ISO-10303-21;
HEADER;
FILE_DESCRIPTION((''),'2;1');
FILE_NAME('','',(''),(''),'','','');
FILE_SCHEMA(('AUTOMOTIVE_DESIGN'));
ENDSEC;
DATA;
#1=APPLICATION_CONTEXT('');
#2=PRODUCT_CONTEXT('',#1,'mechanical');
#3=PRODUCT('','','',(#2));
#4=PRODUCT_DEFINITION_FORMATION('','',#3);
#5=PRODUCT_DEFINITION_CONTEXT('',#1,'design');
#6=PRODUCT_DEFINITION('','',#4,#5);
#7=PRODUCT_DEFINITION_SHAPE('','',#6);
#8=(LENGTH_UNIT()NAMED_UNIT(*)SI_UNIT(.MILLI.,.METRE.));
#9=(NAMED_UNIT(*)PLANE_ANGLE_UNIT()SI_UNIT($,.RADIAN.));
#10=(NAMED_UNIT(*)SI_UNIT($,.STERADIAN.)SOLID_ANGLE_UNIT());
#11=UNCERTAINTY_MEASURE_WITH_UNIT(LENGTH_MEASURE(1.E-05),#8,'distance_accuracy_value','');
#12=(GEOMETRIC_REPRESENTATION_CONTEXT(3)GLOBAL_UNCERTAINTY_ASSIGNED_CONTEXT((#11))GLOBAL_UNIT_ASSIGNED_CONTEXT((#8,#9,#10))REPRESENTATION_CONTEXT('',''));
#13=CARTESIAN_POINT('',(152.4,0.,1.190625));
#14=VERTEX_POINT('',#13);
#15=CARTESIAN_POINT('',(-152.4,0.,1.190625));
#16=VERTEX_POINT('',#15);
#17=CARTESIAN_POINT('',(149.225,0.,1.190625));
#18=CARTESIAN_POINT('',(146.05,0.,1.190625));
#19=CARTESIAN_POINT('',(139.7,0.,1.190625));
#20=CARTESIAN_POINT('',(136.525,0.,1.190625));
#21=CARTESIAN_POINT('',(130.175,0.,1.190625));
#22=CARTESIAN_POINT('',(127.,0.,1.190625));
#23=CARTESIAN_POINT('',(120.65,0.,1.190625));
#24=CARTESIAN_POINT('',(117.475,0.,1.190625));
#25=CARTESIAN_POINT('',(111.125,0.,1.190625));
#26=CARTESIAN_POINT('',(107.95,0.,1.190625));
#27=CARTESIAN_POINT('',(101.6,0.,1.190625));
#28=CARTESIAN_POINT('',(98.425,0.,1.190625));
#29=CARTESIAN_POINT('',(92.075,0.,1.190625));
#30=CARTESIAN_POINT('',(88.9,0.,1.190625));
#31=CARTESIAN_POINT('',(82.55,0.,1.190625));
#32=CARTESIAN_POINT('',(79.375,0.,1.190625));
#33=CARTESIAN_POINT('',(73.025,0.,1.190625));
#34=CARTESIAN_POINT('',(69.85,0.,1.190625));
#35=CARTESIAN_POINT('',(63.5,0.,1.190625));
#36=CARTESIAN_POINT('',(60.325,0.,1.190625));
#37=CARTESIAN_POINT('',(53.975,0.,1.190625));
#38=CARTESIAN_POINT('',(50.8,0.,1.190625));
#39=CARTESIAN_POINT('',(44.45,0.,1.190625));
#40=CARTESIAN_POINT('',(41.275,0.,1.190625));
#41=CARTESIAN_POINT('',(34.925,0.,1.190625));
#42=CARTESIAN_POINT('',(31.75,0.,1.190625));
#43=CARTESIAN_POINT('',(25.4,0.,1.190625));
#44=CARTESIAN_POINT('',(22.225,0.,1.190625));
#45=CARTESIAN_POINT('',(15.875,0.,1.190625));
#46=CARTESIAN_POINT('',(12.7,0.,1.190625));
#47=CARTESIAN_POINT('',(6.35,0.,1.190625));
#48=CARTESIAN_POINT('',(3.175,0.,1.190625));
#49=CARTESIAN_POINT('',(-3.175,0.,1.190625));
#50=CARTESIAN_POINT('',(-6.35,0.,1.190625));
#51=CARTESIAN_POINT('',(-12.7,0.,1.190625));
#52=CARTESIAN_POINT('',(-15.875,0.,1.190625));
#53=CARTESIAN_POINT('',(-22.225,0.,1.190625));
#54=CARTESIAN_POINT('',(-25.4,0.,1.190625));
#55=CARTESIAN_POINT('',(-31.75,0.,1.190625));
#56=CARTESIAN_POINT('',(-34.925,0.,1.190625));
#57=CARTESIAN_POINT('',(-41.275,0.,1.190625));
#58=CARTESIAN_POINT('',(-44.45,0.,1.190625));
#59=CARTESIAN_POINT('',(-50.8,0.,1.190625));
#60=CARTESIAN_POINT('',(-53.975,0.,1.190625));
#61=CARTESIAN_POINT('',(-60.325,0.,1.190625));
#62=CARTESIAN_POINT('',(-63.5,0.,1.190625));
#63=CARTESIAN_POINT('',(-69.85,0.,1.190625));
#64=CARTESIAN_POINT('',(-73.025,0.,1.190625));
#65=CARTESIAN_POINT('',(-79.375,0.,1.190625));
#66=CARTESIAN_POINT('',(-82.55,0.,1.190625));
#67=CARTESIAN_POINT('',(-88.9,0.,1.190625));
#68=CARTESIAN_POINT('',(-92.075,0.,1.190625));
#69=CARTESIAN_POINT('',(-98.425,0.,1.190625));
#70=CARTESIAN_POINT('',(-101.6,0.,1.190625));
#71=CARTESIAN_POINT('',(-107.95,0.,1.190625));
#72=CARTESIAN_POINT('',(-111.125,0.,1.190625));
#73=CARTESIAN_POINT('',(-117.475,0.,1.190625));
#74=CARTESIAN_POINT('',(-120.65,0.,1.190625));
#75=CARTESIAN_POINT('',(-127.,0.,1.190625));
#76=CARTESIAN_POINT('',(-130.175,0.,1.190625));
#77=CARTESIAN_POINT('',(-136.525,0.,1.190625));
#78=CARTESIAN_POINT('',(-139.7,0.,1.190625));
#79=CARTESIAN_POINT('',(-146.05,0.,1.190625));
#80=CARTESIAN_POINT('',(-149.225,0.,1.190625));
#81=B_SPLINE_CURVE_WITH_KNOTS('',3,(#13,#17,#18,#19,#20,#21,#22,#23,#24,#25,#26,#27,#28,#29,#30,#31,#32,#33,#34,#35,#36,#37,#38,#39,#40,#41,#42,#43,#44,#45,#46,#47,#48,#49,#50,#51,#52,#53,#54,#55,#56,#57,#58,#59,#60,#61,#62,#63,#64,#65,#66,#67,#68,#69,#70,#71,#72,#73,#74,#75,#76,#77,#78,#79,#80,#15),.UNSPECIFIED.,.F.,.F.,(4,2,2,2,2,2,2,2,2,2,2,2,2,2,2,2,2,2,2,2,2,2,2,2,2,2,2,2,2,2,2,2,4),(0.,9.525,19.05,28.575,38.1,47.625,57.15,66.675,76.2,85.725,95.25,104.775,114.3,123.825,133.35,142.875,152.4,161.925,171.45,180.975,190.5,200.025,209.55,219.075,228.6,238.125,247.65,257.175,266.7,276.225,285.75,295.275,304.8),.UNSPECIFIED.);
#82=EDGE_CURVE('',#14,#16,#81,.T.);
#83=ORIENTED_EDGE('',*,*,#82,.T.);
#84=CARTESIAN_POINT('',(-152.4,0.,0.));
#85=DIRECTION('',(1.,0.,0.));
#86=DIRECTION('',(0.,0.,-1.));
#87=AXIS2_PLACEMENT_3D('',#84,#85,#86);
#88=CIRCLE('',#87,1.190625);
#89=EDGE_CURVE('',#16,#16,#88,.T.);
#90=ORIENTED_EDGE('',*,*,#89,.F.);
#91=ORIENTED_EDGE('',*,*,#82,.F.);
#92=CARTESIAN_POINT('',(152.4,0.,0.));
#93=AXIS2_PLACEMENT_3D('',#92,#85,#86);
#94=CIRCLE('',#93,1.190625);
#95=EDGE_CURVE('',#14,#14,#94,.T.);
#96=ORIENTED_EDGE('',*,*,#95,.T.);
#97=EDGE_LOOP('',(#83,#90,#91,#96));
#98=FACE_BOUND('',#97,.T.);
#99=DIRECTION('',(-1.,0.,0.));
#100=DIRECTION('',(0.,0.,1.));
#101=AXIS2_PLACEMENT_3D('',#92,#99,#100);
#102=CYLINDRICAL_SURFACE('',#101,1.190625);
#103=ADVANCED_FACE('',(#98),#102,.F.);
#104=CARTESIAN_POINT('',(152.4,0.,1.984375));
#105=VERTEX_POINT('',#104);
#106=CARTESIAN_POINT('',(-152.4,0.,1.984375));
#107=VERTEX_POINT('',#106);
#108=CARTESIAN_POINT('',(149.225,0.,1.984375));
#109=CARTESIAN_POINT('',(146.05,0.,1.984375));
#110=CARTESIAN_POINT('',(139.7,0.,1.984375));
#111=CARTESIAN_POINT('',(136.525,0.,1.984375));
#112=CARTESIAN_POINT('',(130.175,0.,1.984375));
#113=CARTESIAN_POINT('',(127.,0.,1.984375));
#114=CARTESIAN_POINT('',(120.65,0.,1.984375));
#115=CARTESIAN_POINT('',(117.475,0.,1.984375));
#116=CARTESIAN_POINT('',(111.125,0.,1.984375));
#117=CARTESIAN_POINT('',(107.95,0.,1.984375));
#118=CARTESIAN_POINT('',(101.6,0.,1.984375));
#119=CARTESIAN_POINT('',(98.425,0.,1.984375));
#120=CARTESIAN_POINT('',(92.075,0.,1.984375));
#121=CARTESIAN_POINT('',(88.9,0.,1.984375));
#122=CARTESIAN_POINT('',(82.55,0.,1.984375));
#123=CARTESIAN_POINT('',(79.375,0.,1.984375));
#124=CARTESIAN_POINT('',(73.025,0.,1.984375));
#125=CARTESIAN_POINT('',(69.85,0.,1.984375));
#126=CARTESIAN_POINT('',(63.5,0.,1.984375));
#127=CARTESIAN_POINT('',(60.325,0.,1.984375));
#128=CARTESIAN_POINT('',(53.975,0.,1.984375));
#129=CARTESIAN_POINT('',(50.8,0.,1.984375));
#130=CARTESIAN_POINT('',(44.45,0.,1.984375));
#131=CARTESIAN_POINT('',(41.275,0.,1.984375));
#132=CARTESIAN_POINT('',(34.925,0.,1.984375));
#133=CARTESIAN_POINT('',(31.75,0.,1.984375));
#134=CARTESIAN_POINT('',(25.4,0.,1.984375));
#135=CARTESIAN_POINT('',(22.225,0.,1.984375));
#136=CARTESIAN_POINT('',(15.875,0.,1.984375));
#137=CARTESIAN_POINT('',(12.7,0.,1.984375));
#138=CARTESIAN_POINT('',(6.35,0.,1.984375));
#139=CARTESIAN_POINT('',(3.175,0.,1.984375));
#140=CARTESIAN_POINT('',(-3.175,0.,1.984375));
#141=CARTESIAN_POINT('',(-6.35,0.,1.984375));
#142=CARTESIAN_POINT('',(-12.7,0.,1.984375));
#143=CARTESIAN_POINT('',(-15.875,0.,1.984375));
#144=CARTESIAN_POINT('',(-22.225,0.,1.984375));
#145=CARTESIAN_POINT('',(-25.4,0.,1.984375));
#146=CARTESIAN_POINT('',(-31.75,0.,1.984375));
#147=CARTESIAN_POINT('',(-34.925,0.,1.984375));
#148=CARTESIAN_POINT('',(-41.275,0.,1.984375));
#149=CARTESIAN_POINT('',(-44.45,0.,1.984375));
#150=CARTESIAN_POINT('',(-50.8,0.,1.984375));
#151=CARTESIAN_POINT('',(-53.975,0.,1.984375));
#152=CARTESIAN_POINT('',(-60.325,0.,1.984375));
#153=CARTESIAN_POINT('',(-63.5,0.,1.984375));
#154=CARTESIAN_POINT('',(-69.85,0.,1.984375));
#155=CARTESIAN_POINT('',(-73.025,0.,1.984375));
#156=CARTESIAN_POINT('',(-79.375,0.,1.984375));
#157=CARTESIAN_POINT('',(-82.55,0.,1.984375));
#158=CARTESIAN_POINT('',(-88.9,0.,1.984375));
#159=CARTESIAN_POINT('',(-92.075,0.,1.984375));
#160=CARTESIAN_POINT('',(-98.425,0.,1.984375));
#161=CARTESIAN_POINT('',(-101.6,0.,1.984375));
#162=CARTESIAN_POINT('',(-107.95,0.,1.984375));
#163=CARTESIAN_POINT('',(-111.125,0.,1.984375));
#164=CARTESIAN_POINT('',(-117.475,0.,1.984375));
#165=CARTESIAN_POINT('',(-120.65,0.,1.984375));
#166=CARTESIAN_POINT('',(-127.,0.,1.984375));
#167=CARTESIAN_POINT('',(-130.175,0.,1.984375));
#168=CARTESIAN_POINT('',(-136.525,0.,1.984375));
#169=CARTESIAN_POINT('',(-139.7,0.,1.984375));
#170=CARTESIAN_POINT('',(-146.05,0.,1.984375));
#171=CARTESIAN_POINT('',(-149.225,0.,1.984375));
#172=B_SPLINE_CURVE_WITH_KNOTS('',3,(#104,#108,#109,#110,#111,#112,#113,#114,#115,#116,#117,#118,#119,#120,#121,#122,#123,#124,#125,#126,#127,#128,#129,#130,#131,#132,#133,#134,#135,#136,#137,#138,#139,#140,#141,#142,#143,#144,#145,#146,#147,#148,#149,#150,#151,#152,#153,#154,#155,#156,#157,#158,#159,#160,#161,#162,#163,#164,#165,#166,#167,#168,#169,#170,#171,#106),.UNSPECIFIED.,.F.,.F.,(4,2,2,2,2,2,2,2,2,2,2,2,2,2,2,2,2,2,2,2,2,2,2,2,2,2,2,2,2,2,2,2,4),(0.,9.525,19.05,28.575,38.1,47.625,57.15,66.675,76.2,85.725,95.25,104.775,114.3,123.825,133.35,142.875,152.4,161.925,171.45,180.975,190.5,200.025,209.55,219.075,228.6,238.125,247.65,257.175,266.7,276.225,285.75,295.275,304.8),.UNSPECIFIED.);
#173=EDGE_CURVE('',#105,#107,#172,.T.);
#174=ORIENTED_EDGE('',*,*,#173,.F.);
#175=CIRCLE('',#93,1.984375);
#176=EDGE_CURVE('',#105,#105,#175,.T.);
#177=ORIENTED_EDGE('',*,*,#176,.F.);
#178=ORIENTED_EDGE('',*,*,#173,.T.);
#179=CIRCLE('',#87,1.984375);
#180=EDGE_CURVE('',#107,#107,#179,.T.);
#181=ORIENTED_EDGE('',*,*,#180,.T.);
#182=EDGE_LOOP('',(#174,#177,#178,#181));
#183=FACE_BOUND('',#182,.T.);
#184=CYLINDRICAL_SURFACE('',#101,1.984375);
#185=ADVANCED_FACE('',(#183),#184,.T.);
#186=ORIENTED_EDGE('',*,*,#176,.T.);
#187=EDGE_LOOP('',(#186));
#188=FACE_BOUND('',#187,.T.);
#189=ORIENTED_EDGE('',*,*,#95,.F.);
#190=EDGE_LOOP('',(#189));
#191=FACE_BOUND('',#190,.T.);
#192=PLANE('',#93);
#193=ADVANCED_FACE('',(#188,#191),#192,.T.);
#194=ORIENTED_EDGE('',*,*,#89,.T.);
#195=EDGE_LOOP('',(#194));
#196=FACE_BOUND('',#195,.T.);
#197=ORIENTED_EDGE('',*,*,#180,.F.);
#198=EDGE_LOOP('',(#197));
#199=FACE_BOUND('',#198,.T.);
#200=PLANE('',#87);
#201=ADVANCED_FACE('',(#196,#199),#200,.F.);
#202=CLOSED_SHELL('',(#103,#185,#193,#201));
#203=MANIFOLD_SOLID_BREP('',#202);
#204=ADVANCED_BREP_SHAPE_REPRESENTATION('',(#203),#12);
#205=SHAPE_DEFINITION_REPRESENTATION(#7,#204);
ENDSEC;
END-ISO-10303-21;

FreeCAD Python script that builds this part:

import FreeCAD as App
import Part
import Sketcher
Q = App.Units.Quantity

doc = App.newDocument("Part")
body = doc.addObject("PartDesign::Body", "Body")

# Sketch on YZ plane
sketch1 = doc.addObject("Sketcher::SketchObject", "Sketch")
body.addObject(sketch1)
sketch1.AttachmentSupport = (doc.YZ_Plane, [""])
sketch1.MapMode = "FlatFace"
sketch1.addGeometry([
    Part.Circle(App.Vector(0, 0, 0), App.Vector(0, 0, 1), 2),
    Part.Circle(App.Vector(0, 0, 0), App.Vector(0, 0, 1), 1.2),
], False)
sketch1.addConstraint([
    Sketcher.Constraint("Coincident", 0, 3, -1, 1),
    Sketcher.Constraint("Coincident", 1, 3, -1, 1),
    Sketcher.Constraint("Diameter", 0, Q("0.15625 in")),
    Sketcher.Constraint("Diameter", 1, Q("0.09375 in")),
])
pad1 = doc.addObject("PartDesign::Pad", "Pad")
body.addObject(pad1)
pad1.Profile = sketch1
pad1.Length = Q("12 in")
pad1.Midplane = True

doc.recompute()
